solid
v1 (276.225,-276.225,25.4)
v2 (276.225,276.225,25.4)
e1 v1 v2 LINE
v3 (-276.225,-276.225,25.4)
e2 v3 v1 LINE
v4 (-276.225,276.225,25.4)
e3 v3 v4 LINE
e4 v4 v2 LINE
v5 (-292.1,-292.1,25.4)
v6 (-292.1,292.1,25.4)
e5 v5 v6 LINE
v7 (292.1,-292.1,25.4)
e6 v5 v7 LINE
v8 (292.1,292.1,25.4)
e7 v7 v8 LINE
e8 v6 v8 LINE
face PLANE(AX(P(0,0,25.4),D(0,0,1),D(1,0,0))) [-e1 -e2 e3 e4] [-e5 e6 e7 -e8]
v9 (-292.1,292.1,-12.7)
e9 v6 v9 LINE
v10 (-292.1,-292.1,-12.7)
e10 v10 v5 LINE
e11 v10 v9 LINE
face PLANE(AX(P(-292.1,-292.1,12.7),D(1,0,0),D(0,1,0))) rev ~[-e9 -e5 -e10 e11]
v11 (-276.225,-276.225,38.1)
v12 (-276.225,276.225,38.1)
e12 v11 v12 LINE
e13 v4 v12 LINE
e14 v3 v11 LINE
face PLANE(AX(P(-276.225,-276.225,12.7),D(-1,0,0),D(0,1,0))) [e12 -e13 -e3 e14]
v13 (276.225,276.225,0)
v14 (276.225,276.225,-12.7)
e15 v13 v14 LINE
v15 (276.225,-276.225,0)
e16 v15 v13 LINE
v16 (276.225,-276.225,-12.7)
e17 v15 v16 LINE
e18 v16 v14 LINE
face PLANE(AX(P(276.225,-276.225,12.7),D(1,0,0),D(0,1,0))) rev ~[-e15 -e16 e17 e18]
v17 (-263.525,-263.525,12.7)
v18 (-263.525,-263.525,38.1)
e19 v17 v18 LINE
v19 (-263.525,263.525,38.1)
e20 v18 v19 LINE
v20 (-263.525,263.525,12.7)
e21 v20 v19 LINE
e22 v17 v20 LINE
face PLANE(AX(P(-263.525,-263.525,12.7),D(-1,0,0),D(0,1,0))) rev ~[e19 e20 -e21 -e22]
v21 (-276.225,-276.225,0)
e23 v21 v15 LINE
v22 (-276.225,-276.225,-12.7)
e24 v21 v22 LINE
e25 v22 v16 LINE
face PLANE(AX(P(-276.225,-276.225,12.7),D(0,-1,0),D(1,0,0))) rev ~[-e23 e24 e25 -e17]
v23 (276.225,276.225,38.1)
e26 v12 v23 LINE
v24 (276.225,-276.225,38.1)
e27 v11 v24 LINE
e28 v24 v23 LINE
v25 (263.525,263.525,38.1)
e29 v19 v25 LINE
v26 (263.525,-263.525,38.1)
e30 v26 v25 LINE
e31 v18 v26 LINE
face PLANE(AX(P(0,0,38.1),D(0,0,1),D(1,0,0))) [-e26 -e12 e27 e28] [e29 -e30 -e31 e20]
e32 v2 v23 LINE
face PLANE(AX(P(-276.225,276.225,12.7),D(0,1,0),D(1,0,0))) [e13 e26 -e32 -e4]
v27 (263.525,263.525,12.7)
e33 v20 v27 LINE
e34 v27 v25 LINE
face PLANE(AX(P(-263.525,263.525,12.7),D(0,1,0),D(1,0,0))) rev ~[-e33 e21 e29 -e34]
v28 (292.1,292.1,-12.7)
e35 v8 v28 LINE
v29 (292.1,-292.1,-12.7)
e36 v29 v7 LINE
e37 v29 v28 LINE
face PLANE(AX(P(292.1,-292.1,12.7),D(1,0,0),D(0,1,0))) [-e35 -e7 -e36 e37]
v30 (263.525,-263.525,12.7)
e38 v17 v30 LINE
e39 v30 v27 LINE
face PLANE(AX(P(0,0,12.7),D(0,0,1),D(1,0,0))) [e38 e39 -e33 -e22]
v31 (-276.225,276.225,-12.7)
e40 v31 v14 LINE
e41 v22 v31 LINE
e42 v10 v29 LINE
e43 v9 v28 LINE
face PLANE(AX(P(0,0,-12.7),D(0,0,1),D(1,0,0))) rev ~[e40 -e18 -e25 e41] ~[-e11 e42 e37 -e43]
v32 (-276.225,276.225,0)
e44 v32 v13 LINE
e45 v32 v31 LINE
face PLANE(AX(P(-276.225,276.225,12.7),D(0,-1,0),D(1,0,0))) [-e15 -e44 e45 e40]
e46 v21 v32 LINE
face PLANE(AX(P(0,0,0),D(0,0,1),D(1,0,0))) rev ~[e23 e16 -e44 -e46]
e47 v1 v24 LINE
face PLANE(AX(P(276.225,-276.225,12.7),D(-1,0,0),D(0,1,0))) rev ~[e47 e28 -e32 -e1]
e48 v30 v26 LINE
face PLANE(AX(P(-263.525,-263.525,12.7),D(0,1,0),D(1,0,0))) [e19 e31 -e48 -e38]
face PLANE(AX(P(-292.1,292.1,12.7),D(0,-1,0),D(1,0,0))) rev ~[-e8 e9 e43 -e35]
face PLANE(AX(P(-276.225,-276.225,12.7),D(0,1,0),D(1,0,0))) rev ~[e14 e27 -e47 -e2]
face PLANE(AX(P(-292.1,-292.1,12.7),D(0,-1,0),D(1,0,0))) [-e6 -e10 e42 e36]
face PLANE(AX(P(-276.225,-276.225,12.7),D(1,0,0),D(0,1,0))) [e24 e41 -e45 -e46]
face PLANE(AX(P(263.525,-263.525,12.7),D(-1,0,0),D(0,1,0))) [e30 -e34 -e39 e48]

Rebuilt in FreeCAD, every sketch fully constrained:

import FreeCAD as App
import Part
import Sketcher
from FreeCAD import Vector
Q = App.Units.Quantity

doc = App.newDocument("Part")
body = doc.addObject("PartDesign::Body", "Body")

# Sketch on XY plane
sketch1 = doc.addObject("Sketcher::SketchObject", "Sketch")
body.addObject(sketch1)
sketch1.AttachmentSupport = (doc.XY_Plane, [""])
sketch1.MapMode = "FlatFace"
sketch1.addGeometry(Part.LineSegment(Vector(-292.1, 292.1, 0), Vector(-292.1, -292.1, 0)), False)
sketch1.addGeometry(Part.LineSegment(Vector(-292.1, -292.1, 0), Vector(292.1, -292.1, 0)), False)
sketch1.addGeometry(Part.LineSegment(Vector(292.1, -292.1, 0), Vector(292.1, 292.1, 0)), False)
sketch1.addGeometry(Part.LineSegment(Vector(292.1, 292.1, 0), Vector(-292.1, 292.1, 0)), False)
sketch1.addConstraint(Sketcher.Constraint("Coincident", 0, 2, 1, 1))
sketch1.addConstraint(Sketcher.Constraint("Coincident", 1, 2, 2, 1))
sketch1.addConstraint(Sketcher.Constraint("Coincident", 2, 2, 3, 1))
sketch1.addConstraint(Sketcher.Constraint("Coincident", 3, 2, 0, 1))
sketch1.addConstraint(Sketcher.Constraint("Vertical", 0))
sketch1.addConstraint(Sketcher.Constraint("Horizontal", 1))
sketch1.addConstraint(Sketcher.Constraint("Vertical", 2))
sketch1.addConstraint(Sketcher.Constraint("Horizontal", 3))
sketch1.addConstraint(Sketcher.Constraint("Symmetric", 0, 2, 2, 2, -1, 1))
sketch1.addConstraint(Sketcher.Constraint("Equal", 3, 0))
sketch1.addConstraint(Sketcher.Constraint("DistanceX", 1, 1, 1, 2, Q("23 in")))
pad1 = doc.addObject("PartDesign::Pad", "Pad")
body.addObject(pad1)
pad1.Profile = sketch1
pad1.Length = Q("0.5 in")

# Sketch on XY plane
sketch2 = doc.addObject("Sketcher::SketchObject", "Sketch001")
body.addObject(sketch2)
sketch2.AttachmentSupport = (doc.XY_Plane, [""])
sketch2.MapMode = "FlatFace"
sketch2.AttachmentOffset = App.Placement(Vector(0, 0, 0.5 * 25.4), App.Rotation())
sketch2.addGeometry(Part.LineSegment(Vector(-292.1, 292.1, 0), Vector(-292.1, -292.1, 0)), False)
sketch2.addGeometry(Part.LineSegment(Vector(-292.1, -292.1, 0), Vector(292.1, -292.1, 0)), False)
sketch2.addGeometry(Part.LineSegment(Vector(292.1, -292.1, 0), Vector(292.1, 292.1, 0)), False)
sketch2.addGeometry(Part.LineSegment(Vector(292.1, 292.1, 0), Vector(-292.1, 292.1, 0)), False)
sketch2.addGeometry(Part.LineSegment(Vector(279.4, -279.4, 0), Vector(-279.4, -279.4, 0)), False)
sketch2.addGeometry(Part.LineSegment(Vector(-279.4, -279.4, 0), Vector(-279.4, 279.4, 0)), False)
sketch2.addGeometry(Part.LineSegment(Vector(-279.4, 279.4, 0), Vector(279.4, 279.4, 0)), False)
sketch2.addGeometry(Part.LineSegment(Vector(279.4, 279.4, 0), Vector(279.4, -279.4, 0)), False)
sketch2.addConstraint(Sketcher.Constraint("Coincident", 0, 2, 1, 1))
sketch2.addConstraint(Sketcher.Constraint("Coincident", 1, 2, 2, 1))
sketch2.addConstraint(Sketcher.Constraint("Coincident", 2, 2, 3, 1))
sketch2.addConstraint(Sketcher.Constraint("Coincident", 3, 2, 0, 1))
sketch2.addConstraint(Sketcher.Constraint("Coincident", 4, 2, 5, 1))
sketch2.addConstraint(Sketcher.Constraint("Coincident", 5, 2, 6, 1))
sketch2.addConstraint(Sketcher.Constraint("Coincident", 6, 2, 7, 1))
sketch2.addConstraint(Sketcher.Constraint("Coincident", 7, 2, 4, 1))
sketch2.addConstraint(Sketcher.Constraint("Vertical", 0))
sketch2.addConstraint(Sketcher.Constraint("Horizontal", 1))
sketch2.addConstraint(Sketcher.Constraint("Vertical", 2))
sketch2.addConstraint(Sketcher.Constraint("Horizontal", 3))
sketch2.addConstraint(Sketcher.Constraint("Horizontal", 4))
sketch2.addConstraint(Sketcher.Constraint("Vertical", 5))
sketch2.addConstraint(Sketcher.Constraint("Horizontal", 6))
sketch2.addConstraint(Sketcher.Constraint("Vertical", 7))
sketch2.addConstraint(Sketcher.Constraint("Symmetric", 0, 2, 2, 2, -1, 1))
sketch2.addConstraint(Sketcher.Constraint("Symmetric", 4, 2, 6, 2, -1, 1))
sketch2.addConstraint(Sketcher.Constraint("Equal", 3, 0))
sketch2.addConstraint(Sketcher.Constraint("Equal", 6, 5))
sketch2.addConstraint(Sketcher.Constraint("DistanceX", 1, 1, 1, 2, Q("23 in")))
sketch2.addConstraint(Sketcher.Constraint("DistanceX", 4, 2, 4, 1, Q("22 in")))
pad2 = doc.addObject("PartDesign::Pad", "Pad001")
body.addObject(pad2)
pad2.Profile = sketch2
pad2.Length = Q("6 in")

# Sketch on XY plane
sketch3 = doc.addObject("Sketcher::SketchObject", "Sketch002")
body.addObject(sketch3)
sketch3.AttachmentSupport = (doc.XY_Plane, [""])
sketch3.MapMode = "FlatFace"
sketch3.AttachmentOffset = App.Placement(Vector(0, 0, 0.5 * 25.4), App.Rotation())
sketch3.addGeometry(Part.LineSegment(Vector(-508.768082, 441.528857, 0), Vector(-508.768082, -441.528857, 0)), False)
sketch3.addGeometry(Part.LineSegment(Vector(-508.768082, -441.528857, 0), Vector(508.768082, -441.528857, 0)), False)
sketch3.addGeometry(Part.LineSegment(Vector(508.768082, -441.528857, 0), Vector(508.768082, 441.528857, 0)), False)
sketch3.addGeometry(Part.LineSegment(Vector(508.768082, 441.528857, 0), Vector(-508.768082, 441.528857, 0)), False)
sketch3.addGeometry(Part.LineSegment(Vector(279.4, -279.4, 0), Vector(-279.4, -279.4, 0)), False)
sketch3.addGeometry(Part.LineSegment(Vector(-279.4, -279.4, 0), Vector(-279.4, 279.4, 0)), False)
sketch3.addGeometry(Part.LineSegment(Vector(-279.4, 279.4, 0), Vector(279.4, 279.4, 0)), False)
sketch3.addGeometry(Part.LineSegment(Vector(279.4, 279.4, 0), Vector(279.4, -279.4, 0)), False)
sketch3.addConstraint(Sketcher.Constraint("Coincident", 0, 2, 1, 1))
sketch3.addConstraint(Sketcher.Constraint("Coincident", 1, 2, 2, 1))
sketch3.addConstraint(Sketcher.Constraint("Coincident", 2, 2, 3, 1))
sketch3.addConstraint(Sketcher.Constraint("Coincident", 3, 2, 0, 1))
sketch3.addConstraint(Sketcher.Constraint("Coincident", 4, 2, 5, 1))
sketch3.addConstraint(Sketcher.Constraint("Coincident", 5, 2, 6, 1))
sketch3.addConstraint(Sketcher.Constraint("Coincident", 6, 2, 7, 1))
sketch3.addConstraint(Sketcher.Constraint("Coincident", 7, 2, 4, 1))
sketch3.addConstraint(Sketcher.Constraint("Vertical", 0))
sketch3.addConstraint(Sketcher.Constraint("Horizontal", 1))
sketch3.addConstraint(Sketcher.Constraint("Vertical", 2))
sketch3.addConstraint(Sketcher.Constraint("Horizontal", 3))
sketch3.addConstraint(Sketcher.Constraint("Horizontal", 4))
sketch3.addConstraint(Sketcher.Constraint("Vertical", 5))
sketch3.addConstraint(Sketcher.Constraint("Horizontal", 6))
sketch3.addConstraint(Sketcher.Constraint("Vertical", 7))
sketch3.addConstraint(Sketcher.Constraint("Symmetric", 0, 2, 2, 2, -1, 1))
sketch3.addConstraint(Sketcher.Constraint("Symmetric", 4, 2, 6, 2, -1, 1))
sketch3.addConstraint(Sketcher.Constraint("Equal", 6, 5))
sketch3.addConstraint(Sketcher.Constraint("DistanceX", 4, 2, 4, 1, Q("22 in")))
sketch3.addConstraint(Sketcher.Constraint("DistanceX", 1, 1, 1, 2, 1017.536164))
sketch3.addConstraint(Sketcher.Constraint("DistanceY", 0, 2, 0, 1, 883.057714))
pocket1 = doc.addObject("PartDesign::Pocket", "Pocket")
body.addObject(pocket1)
pocket1.Profile = sketch3
pocket1.Length = Q("20 in")
pocket1.Reversed = True

# Sketch on XY plane
sketch4 = doc.addObject("Sketcher::SketchObject", "Sketch003")
body.addObject(sketch4)
sketch4.AttachmentSupport = (doc.XY_Plane, [""])
sketch4.MapMode = "FlatFace"
sketch4.AttachmentOffset = App.Placement(Vector(0, 0, 0.5 * 25.4), App.Rotation())
sketch4.addGeometry(Part.LineSegment(Vector(-276.225, 276.225, 0), Vector(-276.225, -276.225, 0)), False)
sketch4.addGeometry(Part.LineSegment(Vector(-276.225, -276.225, 0), Vector(276.225, -276.225, 0)), False)
sketch4.addGeometry(Part.LineSegment(Vector(276.225, -276.225, 0), Vector(276.225, 276.225, 0)), False)
sketch4.addGeometry(Part.LineSegment(Vector(276.225, 276.225, 0), Vector(-276.225, 276.225, 0)), False)
sketch4.addGeometry(Part.LineSegment(Vector(263.525, -263.525, 0), Vector(-263.525, -263.525, 0)), False)
sketch4.addGeometry(Part.LineSegment(Vector(-263.525, -263.525, 0), Vector(-263.525, 263.525, 0)), False)
sketch4.addGeometry(Part.LineSegment(Vector(-263.525, 263.525, 0), Vector(263.525, 263.525, 0)), False)
sketch4.addGeometry(Part.LineSegment(Vector(263.525, 263.525, 0), Vector(263.525, -263.525, 0)), False)
sketch4.addConstraint(Sketcher.Constraint("Coincident", 0, 2, 1, 1))
sketch4.addConstraint(Sketcher.Constraint("Coincident", 1, 2, 2, 1))
sketch4.addConstraint(Sketcher.Constraint("Coincident", 2, 2, 3, 1))
sketch4.addConstraint(Sketcher.Constraint("Coincident", 3, 2, 0, 1))
sketch4.addConstraint(Sketcher.Constraint("Coincident", 4, 2, 5, 1))
sketch4.addConstraint(Sketcher.Constraint("Coincident", 5, 2, 6, 1))
sketch4.addConstraint(Sketcher.Constraint("Coincident", 6, 2, 7, 1))
sketch4.addConstraint(Sketcher.Constraint("Coincident", 7, 2, 4, 1))
sketch4.addConstraint(Sketcher.Constraint("Vertical", 0))
sketch4.addConstraint(Sketcher.Constraint("Horizontal", 1))
sketch4.addConstraint(Sketcher.Constraint("Vertical", 2))
sketch4.addConstraint(Sketcher.Constraint("Horizontal", 3))
sketch4.addConstraint(Sketcher.Constraint("Horizontal", 4))
sketch4.addConstraint(Sketcher.Constraint("Vertical", 5))
sketch4.addConstraint(Sketcher.Constraint("Horizontal", 6))
sketch4.addConstraint(Sketcher.Constraint("Vertical", 7))
sketch4.addConstraint(Sketcher.Constraint("Symmetric", 0, 2, 2, 2, -1, 1))
sketch4.addConstraint(Sketcher.Constraint("Symmetric", 4, 2, 6, 2, -1, 1))
sketch4.addConstraint(Sketcher.Constraint("Equal", 3, 0))
sketch4.addConstraint(Sketcher.Constraint("Equal", 6, 5))
sketch4.addConstraint(Sketcher.Constraint("DistanceX", 1, 1, 1, 2, Q("21.75 in")))
sketch4.addConstraint(Sketcher.Constraint("DistanceX", 4, 2, 4, 1, Q("20.75 in")))
pad3 = doc.addObject("PartDesign::Pad", "Pad002")
body.addObject(pad3)
pad3.Profile = sketch4
pad3.Length = Q("1 in")

# Sketch on XY plane
sketch5 = doc.addObject("Sketcher::SketchObject", "Sketch004")
body.addObject(sketch5)
sketch5.AttachmentSupport = (doc.XY_Plane, [""])
sketch5.MapMode = "FlatFace"
sketch5.AttachmentOffset = App.Placement(Vector(0, 0, 0.5 * 25.4), App.Rotation())
sketch5.addGeometry(Part.LineSegment(Vector(-292.1, 292.1, 0), Vector(-292.1, -292.1, 0)), False)
sketch5.addGeometry(Part.LineSegment(Vector(-292.1, -292.1, 0), Vector(292.1, -292.1, 0)), False)
sketch5.addGeometry(Part.LineSegment(Vector(292.1, -292.1, 0), Vector(292.1, 292.1, 0)), False)
sketch5.addGeometry(Part.LineSegment(Vector(292.1, 292.1, 0), Vector(-292.1, 292.1, 0)), False)
sketch5.addGeometry(Part.LineSegment(Vector(276.225, -276.225, 0), Vector(-276.225, -276.225, 0)), False)
sketch5.addGeometry(Part.LineSegment(Vector(-276.225, -276.225, 0), Vector(-276.225, 276.225, 0)), False)
sketch5.addGeometry(Part.LineSegment(Vector(-276.225, 276.225, 0), Vector(276.225, 276.225, 0)), False)
sketch5.addGeometry(Part.LineSegment(Vector(276.225, 276.225, 0), Vector(276.225, -276.225, 0)), False)
sketch5.addConstraint(Sketcher.Constraint("Coincident", 0, 2, 1, 1))
sketch5.addConstraint(Sketcher.Constraint("Coincident", 1, 2, 2, 1))
sketch5.addConstraint(Sketcher.Constraint("Coincident", 2, 2, 3, 1))
sketch5.addConstraint(Sketcher.Constraint("Coincident", 3, 2, 0, 1))
sketch5.addConstraint(Sketcher.Constraint("Coincident", 4, 2, 5, 1))
sketch5.addConstraint(Sketcher.Constraint("Coincident", 5, 2, 6, 1))
sketch5.addConstraint(Sketcher.Constraint("Coincident", 6, 2, 7, 1))
sketch5.addConstraint(Sketcher.Constraint("Coincident", 7, 2, 4, 1))
sketch5.addConstraint(Sketcher.Constraint("Vertical", 0))
sketch5.addConstraint(Sketcher.Constraint("Horizontal", 1))
sketch5.addConstraint(Sketcher.Constraint("Vertical", 2))
sketch5.addConstraint(Sketcher.Constraint("Horizontal", 3))
sketch5.addConstraint(Sketcher.Constraint("Horizontal", 4))
sketch5.addConstraint(Sketcher.Constraint("Vertical", 5))
sketch5.addConstraint(Sketcher.Constraint("Horizontal", 6))
sketch5.addConstraint(Sketcher.Constraint("Vertical", 7))
sketch5.addConstraint(Sketcher.Constraint("Symmetric", 0, 2, 2, 2, -1, 1))
sketch5.addConstraint(Sketcher.Constraint("Symmetric", 4, 2, 6, 2, -1, 1))
sketch5.addConstraint(Sketcher.Constraint("Equal", 3, 0))
sketch5.addConstraint(Sketcher.Constraint("Equal", 6, 5))
sketch5.addConstraint(Sketcher.Constraint("DistanceX", 1, 1, 1, 2, Q("23 in")))
sketch5.addConstraint(Sketcher.Constraint("DistanceX", 4, 2, 4, 1, Q("21.75 in")))
pad4 = doc.addObject("PartDesign::Pad", "Pad003")
body.addObject(pad4)
pad4.Profile = sketch5
pad4.Type = "TwoLengths"
pad4.Length = Q("0.5 in")
pad4.Length2 = Q("1 in")

doc.recompute()
